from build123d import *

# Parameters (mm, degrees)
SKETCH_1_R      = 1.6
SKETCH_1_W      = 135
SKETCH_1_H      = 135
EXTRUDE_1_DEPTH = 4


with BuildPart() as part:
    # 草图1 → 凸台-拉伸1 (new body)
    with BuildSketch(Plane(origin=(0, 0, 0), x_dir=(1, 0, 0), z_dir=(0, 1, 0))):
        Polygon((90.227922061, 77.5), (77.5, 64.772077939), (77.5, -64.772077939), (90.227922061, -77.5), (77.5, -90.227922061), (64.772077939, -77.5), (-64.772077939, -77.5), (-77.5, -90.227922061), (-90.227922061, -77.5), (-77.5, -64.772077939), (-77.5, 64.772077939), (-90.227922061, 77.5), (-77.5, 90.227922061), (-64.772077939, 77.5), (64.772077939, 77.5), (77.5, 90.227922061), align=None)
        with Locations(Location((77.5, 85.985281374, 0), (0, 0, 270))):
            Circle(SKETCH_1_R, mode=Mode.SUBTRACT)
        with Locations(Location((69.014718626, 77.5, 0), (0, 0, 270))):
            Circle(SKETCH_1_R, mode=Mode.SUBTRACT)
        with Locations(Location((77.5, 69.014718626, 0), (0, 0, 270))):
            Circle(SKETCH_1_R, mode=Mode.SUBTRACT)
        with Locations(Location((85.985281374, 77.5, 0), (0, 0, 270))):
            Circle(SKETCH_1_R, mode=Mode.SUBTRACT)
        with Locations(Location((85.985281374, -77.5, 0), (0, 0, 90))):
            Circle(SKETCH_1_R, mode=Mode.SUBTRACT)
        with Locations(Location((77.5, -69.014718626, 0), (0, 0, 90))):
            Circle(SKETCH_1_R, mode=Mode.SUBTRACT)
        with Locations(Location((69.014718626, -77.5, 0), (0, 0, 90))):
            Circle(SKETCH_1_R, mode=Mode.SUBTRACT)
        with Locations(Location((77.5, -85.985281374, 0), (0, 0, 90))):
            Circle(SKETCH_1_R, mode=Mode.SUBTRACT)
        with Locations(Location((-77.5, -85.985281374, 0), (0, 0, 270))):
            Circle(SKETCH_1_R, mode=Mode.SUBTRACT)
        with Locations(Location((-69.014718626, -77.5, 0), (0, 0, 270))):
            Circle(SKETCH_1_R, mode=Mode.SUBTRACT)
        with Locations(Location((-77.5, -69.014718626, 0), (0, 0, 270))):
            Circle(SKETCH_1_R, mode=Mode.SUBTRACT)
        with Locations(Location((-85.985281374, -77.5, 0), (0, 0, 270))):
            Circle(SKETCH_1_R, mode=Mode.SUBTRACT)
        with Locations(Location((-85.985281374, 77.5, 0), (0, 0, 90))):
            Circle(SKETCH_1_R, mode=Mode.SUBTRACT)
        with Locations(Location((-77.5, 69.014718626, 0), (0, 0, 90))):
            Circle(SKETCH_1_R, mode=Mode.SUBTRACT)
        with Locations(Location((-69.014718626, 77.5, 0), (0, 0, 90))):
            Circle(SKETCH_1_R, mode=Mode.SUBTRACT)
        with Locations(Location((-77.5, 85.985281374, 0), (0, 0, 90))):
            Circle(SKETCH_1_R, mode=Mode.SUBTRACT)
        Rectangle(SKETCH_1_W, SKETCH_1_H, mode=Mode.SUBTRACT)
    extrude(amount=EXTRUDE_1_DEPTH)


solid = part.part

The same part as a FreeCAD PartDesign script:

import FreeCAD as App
import Part
import Sketcher

V = App.Vector


def add_polygon(sketch, points):
    """Adds a closed chain of lines whose ends are joined by coincident constraints."""
    first, n = sketch.GeometryCount, len(points)
    for a, b in zip(points, points[1:] + points[:1]):
        sketch.addGeometry(Part.LineSegment(App.Vector(*a, 0), App.Vector(*b, 0)), False)
    for i in range(n):
        sketch.addConstraint(Sketcher.Constraint("Coincident", first + i, 2, first + (i + 1) % n, 1))

doc = App.newDocument("Part")
body = doc.addObject("PartDesign::Body", "Body")

# Sketch on XZ plane
sketch1 = doc.addObject("Sketcher::SketchObject", "Sketch")
body.addObject(sketch1)
sketch1.AttachmentSupport = (doc.XZ_Plane, [""])
sketch1.MapMode = "FlatFace"
add_polygon(sketch1, [(77.5, -64.8), (90.2, -77.5), (77.5, -90.2), (64.8, -77.5), (-64.8, -77.5), (-77.5, -90.2), (-90.2, -77.5), (-77.5, -64.8), (-77.5, 64.8), (-90.2, 77.5), (-77.5, 90.2), (-64.8, 77.5), (64.8, 77.5), (77.5, 90.2), (90.2, 77.5), (77.5, 64.8)])  # lines 0-15
sketch1.addGeometry(Part.Circle(V(77.5, 86, 0), V(0, 0, 1), 1.6), False)  # 16
sketch1.addGeometry(Part.Circle(V(86, 77.5, 0), V(0, 0, 1), 1.6), False)  # 17
sketch1.addGeometry(Part.Circle(V(69, 77.5, 0), V(0, 0, 1), 1.6), False)  # 18
sketch1.addGeometry(Part.Circle(V(77.5, 69, 0), V(0, 0, 1), 1.6), False)  # 19
sketch1.addGeometry(Part.Circle(V(-69, 77.5, 0), V(0, 0, 1), 1.6), False)  # 20
sketch1.addGeometry(Part.Circle(V(-77.5, 86, 0), V(0, 0, 1), 1.6), False)  # 21
sketch1.addGeometry(Part.Circle(V(-86, 77.5, 0), V(0, 0, 1), 1.6), False)  # 22
sketch1.addGeometry(Part.Circle(V(-77.5, 69, 0), V(0, 0, 1), 1.6), False)  # 23
sketch1.addGeometry(Part.Circle(V(77.5, -69, 0), V(0, 0, 1), 1.6), False)  # 24
sketch1.addGeometry(Part.Circle(V(86, -77.5, 0), V(0, 0, 1), 1.6), False)  # 25
sketch1.addGeometry(Part.Circle(V(77.5, -86, 0), V(0, 0, 1), 1.6), False)  # 26
sketch1.addGeometry(Part.Circle(V(69, -77.5, 0), V(0, 0, 1), 1.6), False)  # 27
add_polygon(sketch1, [(-67.5, 67.5), (-67.5, -67.5), (67.5, -67.5), (67.5, 67.5)])  # lines 28-31
sketch1.addGeometry(Part.Circle(V(-77.5, -69, 0), V(0, 0, 1), 1.6), False)  # 32
sketch1.addGeometry(Part.Circle(V(-69, -77.5, 0), V(0, 0, 1), 1.6), False)  # 33
sketch1.addGeometry(Part.Circle(V(-86, -77.5, 0), V(0, 0, 1), 1.6), False)  # 34
sketch1.addGeometry(Part.Circle(V(-77.5, -86, 0), V(0, 0, 1), 1.6), False)  # 35
sketch1.addConstraint([
    Sketcher.Constraint("Horizontal", 3),
    Sketcher.Constraint("Vertical", 7),
    Sketcher.Constraint("Horizontal", 11),
    Sketcher.Constraint("Vertical", 15),
    Sketcher.Constraint("Vertical", 28),
    Sketcher.Constraint("Horizontal", 29),
    Sketcher.Constraint("Vertical", 30),
    Sketcher.Constraint("Horizontal", 31),
    Sketcher.Constraint("Equal", 16, 17),
    Sketcher.Constraint("Equal", 17, 18),
    Sketcher.Constraint("Equal", 18, 19),
    Sketcher.Constraint("Equal", 19, 20),
    Sketcher.Constraint("Equal", 20, 21),
    Sketcher.Constraint("Equal", 21, 22),
    Sketcher.Constraint("Equal", 22, 23),
    Sketcher.Constraint("Equal", 23, 24),
    Sketcher.Constraint("Equal", 24, 25),
    Sketcher.Constraint("Equal", 25, 26),
    Sketcher.Constraint("Equal", 26, 27),
    Sketcher.Constraint("Equal", 27, 32),
    Sketcher.Constraint("Equal", 32, 33),
    Sketcher.Constraint("Equal", 33, 34),
    Sketcher.Constraint("Equal", 34, 35),
    Sketcher.Constraint("Symmetric", 23, 3, 24, 3, -1, 1),
    Sketcher.Constraint("Symmetric", 22, 3, 25, 3, -1, 1),
    Sketcher.Constraint("Symmetric", 21, 3, 26, 3, -1, 1),
    Sketcher.Constraint("Symmetric", 20, 3, 27, 3, -1, 1),
    Sketcher.Constraint("Symmetric", 19, 3, 32, 3, -1, 1),
    Sketcher.Constraint("Symmetric", 18, 3, 33, 3, -1, 1),
    Sketcher.Constraint("Symmetric", 17, 3, 34, 3, -1, 1),
    Sketcher.Constraint("Symmetric", 16, 3, 35, 3, -1, 1),
    Sketcher.Constraint("Symmetric", 0, 2, 8, 2, -1, 1),
    Sketcher.Constraint("Symmetric", 1, 2, 9, 2, -1, 1),
    Sketcher.Constraint("Symmetric", 2, 2, 10, 2, -1, 1),
    Sketcher.Constraint("Symmetric", 4, 2, 12, 2, -1, 1),
    Sketcher.Constraint("Symmetric", 5, 2, 13, 2, -1, 1),
    Sketcher.Constraint("Symmetric", 6, 2, 14, 2, -1, 1),
    Sketcher.Constraint("Symmetric", 28, 2, 30, 2, -1, 1),
    Sketcher.Constraint("Symmetric", 18, 3, 20, 3, -2),
    Sketcher.Constraint("Symmetric", 16, 3, 21, 3, -2),
    Sketcher.Constraint("Symmetric", 17, 3, 22, 3, -2),
    Sketcher.Constraint("Symmetric", 19, 3, 23, 3, -2),
    Sketcher.Constraint("Symmetric", 1, 2, 4, 2, -2),
    Sketcher.Constraint("Symmetric", 0, 2, 5, 2, -2),
    Sketcher.Constraint("Perpendicular", 0, 1),
    Sketcher.Constraint("Perpendicular", 1, 2),
    Sketcher.Constraint("Perpendicular", 2, 4),
    Sketcher.Constraint("Perpendicular", 4, 5),
    Sketcher.Constraint("Perpendicular", 5, 6),
    Sketcher.Constraint("Perpendicular", 6, 8),
    Sketcher.Constraint("Perpendicular", 10, 12),
    Sketcher.Constraint("Horizontal", 17, 3, 18, 3),
    Sketcher.Constraint("Horizontal", 34, 3, 0, 2),
    Sketcher.Constraint("Horizontal", 0, 2, 2, 2),
    Sketcher.Constraint("Vertical", 16, 3, 19, 3),
    Sketcher.Constraint("Vertical", 26, 3, 1, 2),
    Sketcher.Constraint("Vertical", 4, 2, 6, 2),
    Sketcher.Constraint("Equal", 11, 7),
    Sketcher.Constraint("Equal", 31, 28),
    Sketcher.Constraint("Diameter", 16, 3.2),
    Sketcher.Constraint("DistanceX", 29, 1, 29, 2, 135.0),
    Sketcher.Constraint("Distance", 0, 18.0),
    Sketcher.Constraint("DistanceX", 20, 3, 17, 3, 155.0),
    Sketcher.Constraint("DistanceX", 21, 3, 16, 3, 155.0),
    Sketcher.Constraint("DistanceY", 24, 3, 16, 3, 155.0),
    Sketcher.Constraint("DistanceY", -1, 1, 16, 3, 85.985281),
    Sketcher.Constraint("DistanceX", -1, 1, 17, 3, 85.985281),
])
pad1 = doc.addObject("PartDesign::Pad", "Pad")
body.addObject(pad1)
pad1.Profile = sketch1
pad1.Length = 4
pad1.Reversed = True

doc.recompute()
